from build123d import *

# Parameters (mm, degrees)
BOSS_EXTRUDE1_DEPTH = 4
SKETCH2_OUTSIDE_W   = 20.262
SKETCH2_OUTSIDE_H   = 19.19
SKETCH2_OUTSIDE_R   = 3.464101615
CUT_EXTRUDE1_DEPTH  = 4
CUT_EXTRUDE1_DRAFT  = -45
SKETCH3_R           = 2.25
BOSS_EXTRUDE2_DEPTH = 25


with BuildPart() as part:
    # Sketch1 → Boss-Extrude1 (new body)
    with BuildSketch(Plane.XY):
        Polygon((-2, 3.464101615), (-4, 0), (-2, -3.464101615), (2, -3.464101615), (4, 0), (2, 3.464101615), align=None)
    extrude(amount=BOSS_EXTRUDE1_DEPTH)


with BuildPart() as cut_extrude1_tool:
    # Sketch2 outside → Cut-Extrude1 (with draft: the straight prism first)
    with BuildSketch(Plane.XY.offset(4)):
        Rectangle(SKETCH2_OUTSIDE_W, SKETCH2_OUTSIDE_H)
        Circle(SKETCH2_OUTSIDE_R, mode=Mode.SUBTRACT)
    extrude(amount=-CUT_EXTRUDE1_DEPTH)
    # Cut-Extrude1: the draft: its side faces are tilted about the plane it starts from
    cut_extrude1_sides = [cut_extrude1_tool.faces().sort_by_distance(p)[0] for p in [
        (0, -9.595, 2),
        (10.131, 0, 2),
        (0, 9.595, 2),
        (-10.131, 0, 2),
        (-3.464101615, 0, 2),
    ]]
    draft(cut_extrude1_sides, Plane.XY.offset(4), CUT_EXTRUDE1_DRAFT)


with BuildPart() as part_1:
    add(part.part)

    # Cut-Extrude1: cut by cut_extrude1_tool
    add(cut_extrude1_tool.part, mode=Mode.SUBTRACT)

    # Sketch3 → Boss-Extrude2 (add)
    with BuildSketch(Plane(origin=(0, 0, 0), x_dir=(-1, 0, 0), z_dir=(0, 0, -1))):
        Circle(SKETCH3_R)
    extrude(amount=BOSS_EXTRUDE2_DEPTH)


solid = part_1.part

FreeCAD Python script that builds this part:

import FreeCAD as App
import Part
import Sketcher

V = App.Vector
Q = App.Units.Quantity


def faces_at(feature, points):
    """Names of the faces that lie closest to the given points."""
    faces = feature.Shape.Faces
    near = lambda p: min(range(len(faces)), key=lambda i: faces[i].distToShape(Part.Vertex(*p))[0])
    return sorted({f"Face{near(p) + 1}" for p in points})


def add_polygon(sketch, points):
    """Adds a closed chain of lines whose ends are joined by coincident constraints."""
    first, n = sketch.GeometryCount, len(points)
    for a, b in zip(points, points[1:] + points[:1]):
        sketch.addGeometry(Part.LineSegment(App.Vector(*a, 0), App.Vector(*b, 0)), False)
    for i in range(n):
        sketch.addConstraint(Sketcher.Constraint("Coincident", first + i, 2, first + (i + 1) % n, 1))

doc = App.newDocument("Part")
body = doc.addObject("PartDesign::Body", "Body")

# Sketch on XY plane
sketch1 = body.newObject("Sketcher::SketchObject", "Sketch")
sketch1.AttachmentSupport = (doc.getObject("XY_Plane"), [""])
sketch1.MapMode = "FlatFace"
add_polygon(sketch1, [(-2, 3.5), (-4, 0), (-2, -3.5), (2, -3.5), (4, 0), (2, 3.5)])  # lines 0-5
sketch1.addConstraint([
    Sketcher.Constraint("Horizontal", 2),
    Sketcher.Constraint("Horizontal", 5),
    Sketcher.Constraint("Symmetric", 0, 2, 3, 2, -1, 1),
    Sketcher.Constraint("Symmetric", 1, 2, 4, 2, -1, 1),
    Sketcher.Constraint("PointOnObject", 0, 2, -1),
    Sketcher.Constraint("Parallel", 0, 3),
    Sketcher.Constraint("Vertical", 2, 2, 4, 2),
    Sketcher.Constraint("DistanceX", 2, 1, 2, 2, 4.0),
    Sketcher.Constraint("Angle", 0, Q("-120 deg")),
    Sketcher.Constraint("Distance", 0, 4.0),
])
pad1 = body.newObject("PartDesign::Pad", "Pad")
pad1.Profile = sketch1
pad1.Length = 4
body2 = doc.addObject("PartDesign::Body", "Body001")

# Sketch on XY plane
sketch2 = body2.newObject("Sketcher::SketchObject", "Sketch001")
sketch2.AttachmentSupport = (doc.getObject("XY_Plane001"), [""])
sketch2.MapMode = "FlatFace"
sketch2.AttachmentOffset = App.Placement(V(0, 0, 4), App.Rotation())
add_polygon(sketch2, [(-10.1, 9.6), (-10.1, -9.6), (10.1, -9.6), (10.1, 9.6)])  # lines 0-3
sketch2.addGeometry(Part.Circle(V(0, 0, 0), V(0, 0, 1), 3.5), False)  # 4
sketch2.addConstraint([
    Sketcher.Constraint("Vertical", 0),
    Sketcher.Constraint("Horizontal", 1),
    Sketcher.Constraint("Vertical", 2),
    Sketcher.Constraint("Horizontal", 3),
    Sketcher.Constraint("Coincident", 4, 3, -1, 1),
    Sketcher.Constraint("Symmetric", 0, 2, 2, 2, -1, 1),
    Sketcher.Constraint("DistanceY", 0, 2, 0, 1, 19.19),
    Sketcher.Constraint("DistanceX", 1, 1, 1, 2, 20.262),
    Sketcher.Constraint("Diameter", 4, 6.928203),
])
pad2 = body2.newObject("PartDesign::Pad", "Pad001")
pad2.Profile = sketch2
pad2.Length = 4
pad2.Reversed = True
doc.recompute()

datumplane = body2.newObject("PartDesign::Plane", "DatumPlane")
datumplane.AttachmentSupport = (doc.getObject("XY_Plane001"), [""])
datumplane.MapMode = "FlatFace"
datumplane.AttachmentOffset = App.Placement(V(0, 0, 4), App.Rotation())
draft = body2.newObject("PartDesign::Draft", "Draft")
draft.Base = (pad2, faces_at(pad2, [
    (0, -9.595, 2),
    (10.131, 0, 2),
    (0, 9.595, 2),
    (-10.131, 0, 2),
    (-3.464, 0, 2),
]))
draft.NeutralPlane = (datumplane, [""])
draft.Angle = 45
draft.Reversed = True
doc.recompute()

boolean = body.newObject("PartDesign::Boolean", "Boolean")
boolean.Type = "Cut"
boolean.addObjects([body2])

# Sketch on XY plane
sketch3 = body.newObject("Sketcher::SketchObject", "Sketch002")
sketch3.AttachmentSupport = (doc.getObject("XY_Plane"), [""])
sketch3.MapMode = "FlatFace"
sketch3.addGeometry(Part.Circle(V(0, 0, 0), V(0, 0, 1), 2.2), False)
sketch3.addConstraint([
    Sketcher.Constraint("Coincident", 0, 3, -1, 1),
    Sketcher.Constraint("Diameter", 0, 4.5),
])
pad3 = body.newObject("PartDesign::Pad", "Pad002")
pad3.Profile = sketch3
pad3.Length = 25
pad3.Reversed = True

doc.recompute()
